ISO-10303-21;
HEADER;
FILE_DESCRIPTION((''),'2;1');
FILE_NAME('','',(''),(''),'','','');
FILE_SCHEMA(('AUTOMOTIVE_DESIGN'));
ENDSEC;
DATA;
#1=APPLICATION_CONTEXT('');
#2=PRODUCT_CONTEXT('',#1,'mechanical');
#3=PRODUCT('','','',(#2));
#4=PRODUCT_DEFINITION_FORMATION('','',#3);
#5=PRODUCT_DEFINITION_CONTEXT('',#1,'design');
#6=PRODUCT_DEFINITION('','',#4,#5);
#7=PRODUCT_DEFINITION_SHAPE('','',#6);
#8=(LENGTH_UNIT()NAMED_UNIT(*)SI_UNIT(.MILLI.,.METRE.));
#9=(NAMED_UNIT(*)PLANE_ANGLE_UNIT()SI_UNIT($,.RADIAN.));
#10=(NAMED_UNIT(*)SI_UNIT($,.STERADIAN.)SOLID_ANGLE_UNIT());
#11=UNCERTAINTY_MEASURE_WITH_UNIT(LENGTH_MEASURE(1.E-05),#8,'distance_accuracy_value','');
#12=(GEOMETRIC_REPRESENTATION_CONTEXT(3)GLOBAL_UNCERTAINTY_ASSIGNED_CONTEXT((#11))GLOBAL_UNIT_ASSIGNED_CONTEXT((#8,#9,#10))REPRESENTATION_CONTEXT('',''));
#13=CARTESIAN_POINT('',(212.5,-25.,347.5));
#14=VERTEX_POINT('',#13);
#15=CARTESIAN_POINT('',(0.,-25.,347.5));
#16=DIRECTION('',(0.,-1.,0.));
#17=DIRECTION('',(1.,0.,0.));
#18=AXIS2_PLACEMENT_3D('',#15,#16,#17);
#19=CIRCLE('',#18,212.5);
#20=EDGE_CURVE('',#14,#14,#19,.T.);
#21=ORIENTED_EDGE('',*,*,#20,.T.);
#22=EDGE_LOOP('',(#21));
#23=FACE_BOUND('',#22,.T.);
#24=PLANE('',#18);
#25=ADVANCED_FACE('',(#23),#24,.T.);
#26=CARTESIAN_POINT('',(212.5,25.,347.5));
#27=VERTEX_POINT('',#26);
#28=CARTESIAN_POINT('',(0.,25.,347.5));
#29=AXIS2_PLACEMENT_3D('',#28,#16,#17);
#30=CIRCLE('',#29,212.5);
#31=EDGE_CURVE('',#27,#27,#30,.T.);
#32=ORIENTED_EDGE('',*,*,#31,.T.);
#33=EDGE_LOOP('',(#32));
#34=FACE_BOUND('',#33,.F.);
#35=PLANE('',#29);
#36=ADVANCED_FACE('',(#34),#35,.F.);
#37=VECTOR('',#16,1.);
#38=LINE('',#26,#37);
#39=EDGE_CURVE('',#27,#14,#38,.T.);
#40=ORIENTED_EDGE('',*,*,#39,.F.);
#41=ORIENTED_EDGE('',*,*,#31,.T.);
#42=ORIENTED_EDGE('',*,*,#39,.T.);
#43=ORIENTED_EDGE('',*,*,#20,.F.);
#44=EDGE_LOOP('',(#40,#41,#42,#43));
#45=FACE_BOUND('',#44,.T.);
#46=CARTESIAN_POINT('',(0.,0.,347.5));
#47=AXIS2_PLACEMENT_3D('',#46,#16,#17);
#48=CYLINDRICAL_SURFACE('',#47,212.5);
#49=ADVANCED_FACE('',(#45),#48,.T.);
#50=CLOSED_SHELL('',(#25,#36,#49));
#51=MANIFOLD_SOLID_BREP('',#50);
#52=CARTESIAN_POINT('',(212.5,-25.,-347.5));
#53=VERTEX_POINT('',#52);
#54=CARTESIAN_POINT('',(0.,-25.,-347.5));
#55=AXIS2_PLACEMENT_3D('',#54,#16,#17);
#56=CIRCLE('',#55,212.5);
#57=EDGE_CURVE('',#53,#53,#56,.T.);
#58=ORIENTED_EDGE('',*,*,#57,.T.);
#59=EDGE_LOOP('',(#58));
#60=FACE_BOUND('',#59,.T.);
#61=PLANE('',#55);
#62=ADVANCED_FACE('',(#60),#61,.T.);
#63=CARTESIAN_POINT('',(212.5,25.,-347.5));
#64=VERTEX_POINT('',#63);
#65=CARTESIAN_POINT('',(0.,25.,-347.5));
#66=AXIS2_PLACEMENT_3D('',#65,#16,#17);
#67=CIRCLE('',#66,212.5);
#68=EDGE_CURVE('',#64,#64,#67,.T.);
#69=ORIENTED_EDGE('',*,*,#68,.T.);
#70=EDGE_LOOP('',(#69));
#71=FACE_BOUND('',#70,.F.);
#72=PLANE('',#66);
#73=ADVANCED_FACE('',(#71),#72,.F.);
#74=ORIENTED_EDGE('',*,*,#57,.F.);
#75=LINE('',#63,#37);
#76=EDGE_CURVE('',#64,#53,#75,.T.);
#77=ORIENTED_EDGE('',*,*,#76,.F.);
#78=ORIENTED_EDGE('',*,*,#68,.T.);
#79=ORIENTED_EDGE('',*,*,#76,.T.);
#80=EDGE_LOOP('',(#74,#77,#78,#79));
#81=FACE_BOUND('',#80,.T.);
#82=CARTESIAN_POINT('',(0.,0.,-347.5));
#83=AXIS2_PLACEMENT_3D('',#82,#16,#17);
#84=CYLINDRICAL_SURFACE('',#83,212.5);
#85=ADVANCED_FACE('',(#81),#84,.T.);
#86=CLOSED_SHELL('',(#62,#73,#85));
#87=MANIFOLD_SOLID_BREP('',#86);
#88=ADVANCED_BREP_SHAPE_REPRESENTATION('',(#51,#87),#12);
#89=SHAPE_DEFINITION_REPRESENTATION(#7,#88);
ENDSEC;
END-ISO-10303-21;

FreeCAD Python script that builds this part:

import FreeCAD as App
import Part
import Sketcher
Q = App.Units.Quantity

doc = App.newDocument("Part")
body = doc.addObject("PartDesign::Body", "Body")

# Sketch on XZ plane
sketch1 = body.newObject("Sketcher::SketchObject", "Sketch")
sketch1.AttachmentSupport = (doc.getObject("XZ_Plane"), [""])
sketch1.MapMode = "FlatFace"
sketch1.addGeometry(Part.Circle(App.Vector(0, 348, 0), App.Vector(0, 0, 1), 212), False)
sketch1.addConstraint([
    Sketcher.Constraint("PointOnObject", 0, 3, -2),
    Sketcher.Constraint("Diameter", 0, Q("425 mm")),
    Sketcher.Constraint("DistanceY", -1, 1, 0, 3, Q("347.5 mm")),
])
pad1 = body.newObject("PartDesign::Pad", "Pad")
pad1.Profile = sketch1
pad1.Length = 50
pad1.Midplane = True
body2 = doc.addObject("PartDesign::Body", "Body001")

# Sketch on XZ plane
sketch2 = body2.newObject("Sketcher::SketchObject", "Sketch001")
sketch2.AttachmentSupport = (doc.getObject("XZ_Plane001"), [""])
sketch2.MapMode = "FlatFace"
sketch2.addGeometry(Part.Circle(App.Vector(0, -348, 0), App.Vector(0, 0, 1), 212), False)
sketch2.addConstraint([
    Sketcher.Constraint("PointOnObject", 0, 3, -2),
    Sketcher.Constraint("Diameter", 0, Q("425 mm")),
    Sketcher.Constraint("DistanceY", 0, 3, -1, 1, Q("347.5 mm")),
])
pad2 = body2.newObject("PartDesign::Pad", "Pad001")
pad2.Profile = sketch2
pad2.Length = 50
pad2.Midplane = True

doc.recompute()
